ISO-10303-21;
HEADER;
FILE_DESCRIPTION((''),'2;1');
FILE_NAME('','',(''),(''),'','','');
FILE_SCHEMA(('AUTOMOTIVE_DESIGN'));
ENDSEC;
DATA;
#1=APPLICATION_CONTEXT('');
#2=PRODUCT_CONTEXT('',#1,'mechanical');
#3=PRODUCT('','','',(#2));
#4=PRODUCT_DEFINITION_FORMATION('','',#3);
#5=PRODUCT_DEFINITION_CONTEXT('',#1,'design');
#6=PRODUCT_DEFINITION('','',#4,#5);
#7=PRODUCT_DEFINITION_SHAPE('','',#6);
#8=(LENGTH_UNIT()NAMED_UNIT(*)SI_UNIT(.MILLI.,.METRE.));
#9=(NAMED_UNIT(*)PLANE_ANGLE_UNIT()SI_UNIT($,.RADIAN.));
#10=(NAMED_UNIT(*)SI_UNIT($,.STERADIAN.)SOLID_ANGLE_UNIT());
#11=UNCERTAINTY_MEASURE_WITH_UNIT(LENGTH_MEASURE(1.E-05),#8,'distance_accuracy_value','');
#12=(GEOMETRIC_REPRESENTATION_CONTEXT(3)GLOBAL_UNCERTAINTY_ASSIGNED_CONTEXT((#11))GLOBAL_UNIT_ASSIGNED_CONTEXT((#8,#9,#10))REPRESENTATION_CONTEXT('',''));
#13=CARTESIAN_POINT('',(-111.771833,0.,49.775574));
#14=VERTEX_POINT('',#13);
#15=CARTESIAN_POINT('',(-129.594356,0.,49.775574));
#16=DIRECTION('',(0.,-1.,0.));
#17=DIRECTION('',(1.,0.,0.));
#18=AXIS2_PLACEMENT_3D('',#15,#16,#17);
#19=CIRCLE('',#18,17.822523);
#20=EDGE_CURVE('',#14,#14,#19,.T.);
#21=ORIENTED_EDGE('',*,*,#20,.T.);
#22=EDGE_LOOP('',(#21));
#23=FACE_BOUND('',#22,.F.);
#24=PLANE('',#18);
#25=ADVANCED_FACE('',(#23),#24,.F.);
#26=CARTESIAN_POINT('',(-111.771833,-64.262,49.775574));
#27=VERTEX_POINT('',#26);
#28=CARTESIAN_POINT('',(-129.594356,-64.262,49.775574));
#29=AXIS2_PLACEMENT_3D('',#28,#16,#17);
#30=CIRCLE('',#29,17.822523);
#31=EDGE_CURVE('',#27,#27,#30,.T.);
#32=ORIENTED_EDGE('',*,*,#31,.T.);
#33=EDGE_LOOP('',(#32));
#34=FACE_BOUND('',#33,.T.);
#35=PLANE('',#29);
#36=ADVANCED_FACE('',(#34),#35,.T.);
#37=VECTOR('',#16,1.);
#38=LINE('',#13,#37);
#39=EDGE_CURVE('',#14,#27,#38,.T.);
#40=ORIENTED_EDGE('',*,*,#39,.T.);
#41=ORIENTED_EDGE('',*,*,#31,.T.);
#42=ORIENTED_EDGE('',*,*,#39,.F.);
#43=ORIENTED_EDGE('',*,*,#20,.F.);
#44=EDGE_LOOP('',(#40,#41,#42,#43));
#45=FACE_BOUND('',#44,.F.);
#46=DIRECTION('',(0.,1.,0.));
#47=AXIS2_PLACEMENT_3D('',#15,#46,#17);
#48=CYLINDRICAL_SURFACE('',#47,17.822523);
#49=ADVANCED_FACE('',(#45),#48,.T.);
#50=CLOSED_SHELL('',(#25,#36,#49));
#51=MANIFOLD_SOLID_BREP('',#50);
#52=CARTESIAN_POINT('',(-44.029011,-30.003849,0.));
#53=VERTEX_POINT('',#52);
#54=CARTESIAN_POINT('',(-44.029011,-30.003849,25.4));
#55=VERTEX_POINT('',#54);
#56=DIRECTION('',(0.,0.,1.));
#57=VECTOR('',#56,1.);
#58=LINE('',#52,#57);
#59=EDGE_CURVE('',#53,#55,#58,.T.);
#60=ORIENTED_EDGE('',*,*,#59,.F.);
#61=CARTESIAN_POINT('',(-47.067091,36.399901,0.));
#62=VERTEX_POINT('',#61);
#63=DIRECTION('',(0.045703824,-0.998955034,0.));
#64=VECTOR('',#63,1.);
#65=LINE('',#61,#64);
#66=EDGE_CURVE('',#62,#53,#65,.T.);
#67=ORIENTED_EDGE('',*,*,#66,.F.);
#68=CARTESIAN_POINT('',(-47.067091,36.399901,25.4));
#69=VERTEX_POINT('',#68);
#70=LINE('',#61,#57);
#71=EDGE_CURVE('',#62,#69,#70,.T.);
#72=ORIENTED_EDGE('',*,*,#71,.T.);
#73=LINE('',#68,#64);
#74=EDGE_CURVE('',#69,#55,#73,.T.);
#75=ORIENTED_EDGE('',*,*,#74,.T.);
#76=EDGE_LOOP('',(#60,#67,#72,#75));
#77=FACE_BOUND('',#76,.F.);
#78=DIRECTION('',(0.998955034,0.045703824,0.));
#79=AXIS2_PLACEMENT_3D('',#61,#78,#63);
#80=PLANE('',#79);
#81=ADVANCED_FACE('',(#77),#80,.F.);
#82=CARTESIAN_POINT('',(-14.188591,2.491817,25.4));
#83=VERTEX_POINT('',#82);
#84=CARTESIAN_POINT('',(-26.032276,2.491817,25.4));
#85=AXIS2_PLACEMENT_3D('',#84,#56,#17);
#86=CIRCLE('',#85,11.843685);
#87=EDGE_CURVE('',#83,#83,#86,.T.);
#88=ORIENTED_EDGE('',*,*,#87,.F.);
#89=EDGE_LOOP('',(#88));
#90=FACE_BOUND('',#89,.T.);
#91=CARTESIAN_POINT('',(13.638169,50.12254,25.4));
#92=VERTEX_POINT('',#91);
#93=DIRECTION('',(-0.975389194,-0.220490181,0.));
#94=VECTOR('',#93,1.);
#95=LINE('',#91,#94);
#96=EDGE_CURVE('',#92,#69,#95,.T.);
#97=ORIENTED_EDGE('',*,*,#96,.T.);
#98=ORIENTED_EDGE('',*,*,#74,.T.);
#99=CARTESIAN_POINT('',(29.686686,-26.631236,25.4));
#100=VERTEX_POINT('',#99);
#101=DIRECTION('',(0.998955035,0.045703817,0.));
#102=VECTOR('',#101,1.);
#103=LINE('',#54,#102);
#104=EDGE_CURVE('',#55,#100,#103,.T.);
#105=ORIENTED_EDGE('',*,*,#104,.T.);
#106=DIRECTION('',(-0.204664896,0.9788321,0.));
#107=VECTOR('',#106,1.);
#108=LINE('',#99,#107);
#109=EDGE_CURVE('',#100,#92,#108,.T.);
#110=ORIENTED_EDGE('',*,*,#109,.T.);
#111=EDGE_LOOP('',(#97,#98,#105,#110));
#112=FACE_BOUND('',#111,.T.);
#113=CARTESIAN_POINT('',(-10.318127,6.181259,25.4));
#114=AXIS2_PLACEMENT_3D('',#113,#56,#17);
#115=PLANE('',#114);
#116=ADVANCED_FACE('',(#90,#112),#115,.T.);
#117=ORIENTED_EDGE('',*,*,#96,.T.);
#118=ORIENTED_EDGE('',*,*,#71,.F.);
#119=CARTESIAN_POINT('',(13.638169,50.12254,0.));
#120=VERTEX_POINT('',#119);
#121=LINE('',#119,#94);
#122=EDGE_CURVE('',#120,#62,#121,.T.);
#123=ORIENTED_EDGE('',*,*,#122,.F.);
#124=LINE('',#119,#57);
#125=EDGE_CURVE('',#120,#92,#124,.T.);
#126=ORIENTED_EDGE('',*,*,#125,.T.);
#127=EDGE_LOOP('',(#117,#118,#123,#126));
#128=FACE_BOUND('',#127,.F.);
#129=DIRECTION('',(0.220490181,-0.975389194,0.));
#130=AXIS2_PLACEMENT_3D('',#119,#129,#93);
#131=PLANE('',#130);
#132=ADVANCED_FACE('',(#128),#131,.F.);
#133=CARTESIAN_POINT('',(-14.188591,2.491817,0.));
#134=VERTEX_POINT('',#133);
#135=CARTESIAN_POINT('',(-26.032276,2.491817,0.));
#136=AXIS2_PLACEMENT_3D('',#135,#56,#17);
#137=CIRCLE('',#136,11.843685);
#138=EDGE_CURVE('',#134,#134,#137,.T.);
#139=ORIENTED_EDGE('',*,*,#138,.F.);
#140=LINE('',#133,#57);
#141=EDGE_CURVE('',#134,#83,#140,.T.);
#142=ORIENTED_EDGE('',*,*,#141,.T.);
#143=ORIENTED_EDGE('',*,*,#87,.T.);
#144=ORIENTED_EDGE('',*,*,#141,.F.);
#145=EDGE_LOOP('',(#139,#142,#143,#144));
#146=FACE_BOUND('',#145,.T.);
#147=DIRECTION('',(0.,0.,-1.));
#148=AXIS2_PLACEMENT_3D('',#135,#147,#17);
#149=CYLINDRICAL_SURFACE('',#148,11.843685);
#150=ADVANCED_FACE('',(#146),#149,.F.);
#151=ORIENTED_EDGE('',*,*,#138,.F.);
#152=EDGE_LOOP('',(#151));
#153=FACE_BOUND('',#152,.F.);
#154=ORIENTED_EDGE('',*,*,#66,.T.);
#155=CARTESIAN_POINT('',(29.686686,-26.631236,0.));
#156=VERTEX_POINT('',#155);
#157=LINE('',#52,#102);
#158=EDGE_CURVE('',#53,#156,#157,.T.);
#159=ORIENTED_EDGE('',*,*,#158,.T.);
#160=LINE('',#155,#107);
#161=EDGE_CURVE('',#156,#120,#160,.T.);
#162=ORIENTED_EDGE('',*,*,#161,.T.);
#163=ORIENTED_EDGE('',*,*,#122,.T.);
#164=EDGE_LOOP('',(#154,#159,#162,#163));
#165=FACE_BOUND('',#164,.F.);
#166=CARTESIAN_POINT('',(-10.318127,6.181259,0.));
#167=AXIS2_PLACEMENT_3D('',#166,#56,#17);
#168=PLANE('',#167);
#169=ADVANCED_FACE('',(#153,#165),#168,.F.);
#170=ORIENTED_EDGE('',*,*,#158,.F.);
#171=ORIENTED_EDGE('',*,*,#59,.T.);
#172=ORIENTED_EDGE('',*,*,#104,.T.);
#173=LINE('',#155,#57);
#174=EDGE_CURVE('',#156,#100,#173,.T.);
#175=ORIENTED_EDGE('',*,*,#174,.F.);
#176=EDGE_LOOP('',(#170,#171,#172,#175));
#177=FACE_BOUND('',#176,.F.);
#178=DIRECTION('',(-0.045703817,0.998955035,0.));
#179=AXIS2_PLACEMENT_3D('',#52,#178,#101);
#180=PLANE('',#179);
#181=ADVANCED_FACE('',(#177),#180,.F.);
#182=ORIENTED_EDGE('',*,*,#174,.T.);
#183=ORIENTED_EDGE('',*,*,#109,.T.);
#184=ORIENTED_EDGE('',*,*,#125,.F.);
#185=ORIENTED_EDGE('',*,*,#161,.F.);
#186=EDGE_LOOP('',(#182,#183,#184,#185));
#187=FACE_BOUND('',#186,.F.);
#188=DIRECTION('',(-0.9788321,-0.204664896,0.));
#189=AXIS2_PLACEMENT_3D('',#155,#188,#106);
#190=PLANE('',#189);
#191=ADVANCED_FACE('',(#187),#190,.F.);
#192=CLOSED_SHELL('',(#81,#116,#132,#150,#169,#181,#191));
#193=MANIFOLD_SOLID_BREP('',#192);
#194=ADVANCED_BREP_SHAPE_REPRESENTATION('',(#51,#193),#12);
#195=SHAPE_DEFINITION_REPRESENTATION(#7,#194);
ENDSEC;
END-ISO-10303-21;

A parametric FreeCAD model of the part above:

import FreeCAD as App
import Part
import Sketcher
from FreeCAD import Vector
Q = App.Units.Quantity


def add_polygon(sketch, points):
    """Adds a closed chain of lines whose ends are joined by coincident constraints."""
    first, n = sketch.GeometryCount, len(points)
    for a, b in zip(points, points[1:] + points[:1]):
        sketch.addGeometry(Part.LineSegment(App.Vector(*a, 0), App.Vector(*b, 0)), False)
    for i in range(n):
        sketch.addConstraint(Sketcher.Constraint("Coincident", first + i, 2, first + (i + 1) % n, 1))

doc = App.newDocument("Part")
body = doc.addObject("PartDesign::Body", "Body")

sketch1 = body.newObject("Sketcher::SketchObject", "Sketch")
sketch1.AttachmentSupport = (doc.getObject("XY_Plane"), [""])
sketch1.MapMode = "FlatFace"
add_polygon(sketch1, [(14, 50), (-47, 36), (-44, -30), (30, -27)])
sketch1.addGeometry(Part.Circle(Vector(-26, 2, 0), Vector(0, 0, 1), 12), False)
sketch1.addConstraint(Sketcher.Constraint("Perpendicular", 1, 2))
sketch1.addConstraint(Sketcher.Constraint("Diameter", 4, 23.68737))
sketch1.addConstraint(Sketcher.Constraint("DistanceY", -1, 1, 0, 2, 36.399901))
sketch1.addConstraint(Sketcher.Constraint("Distance", 0, 62.236962))
sketch1.addConstraint(Sketcher.Constraint("DistanceX", 0, 2, -1, 1, 47.067091))
sketch1.addConstraint(Sketcher.Constraint("DistanceX", 1, 2, -1, 1, 44.029011))
sketch1.addConstraint(Sketcher.Constraint("DistanceY", 1, 2, -1, 1, 30.003849))
sketch1.addConstraint(Sketcher.Constraint("DistanceX", -1, 1, 3, 2, 13.638169))
sketch1.addConstraint(Sketcher.Constraint("Distance", 2, 73.792808))
sketch1.addConstraint(Sketcher.Constraint("DistanceX", 4, 3, -1, 1, 26.032276))
sketch1.addConstraint(Sketcher.Constraint("DistanceY", -1, 1, 4, 3, 2.491817))
pad1 = body.newObject("PartDesign::Pad", "Pad")
pad1.Profile = sketch1
pad1.Length = Q("1 in")
body2 = doc.addObject("PartDesign::Body", "Body001")

sketch2 = body2.newObject("Sketcher::SketchObject", "Sketch001")
sketch2.AttachmentSupport = (doc.getObject("XZ_Plane001"), [""])
sketch2.MapMode = "FlatFace"
sketch2.addGeometry(Part.Circle(Vector(-130, 50, 0), Vector(0, 0, 1), 18), False)
sketch2.addConstraint(Sketcher.Constraint("Diameter", 0, 35.645046))
sketch2.addConstraint(Sketcher.Constraint("DistanceX", 0, 3, -1, 1, 129.594356))
sketch2.addConstraint(Sketcher.Constraint("DistanceY", -1, 1, 0, 3, 49.775574))
pad2 = body2.newObject("PartDesign::Pad", "Pad001")
pad2.Profile = sketch2
pad2.Length = Q("2.53 in")

doc.recompute()
